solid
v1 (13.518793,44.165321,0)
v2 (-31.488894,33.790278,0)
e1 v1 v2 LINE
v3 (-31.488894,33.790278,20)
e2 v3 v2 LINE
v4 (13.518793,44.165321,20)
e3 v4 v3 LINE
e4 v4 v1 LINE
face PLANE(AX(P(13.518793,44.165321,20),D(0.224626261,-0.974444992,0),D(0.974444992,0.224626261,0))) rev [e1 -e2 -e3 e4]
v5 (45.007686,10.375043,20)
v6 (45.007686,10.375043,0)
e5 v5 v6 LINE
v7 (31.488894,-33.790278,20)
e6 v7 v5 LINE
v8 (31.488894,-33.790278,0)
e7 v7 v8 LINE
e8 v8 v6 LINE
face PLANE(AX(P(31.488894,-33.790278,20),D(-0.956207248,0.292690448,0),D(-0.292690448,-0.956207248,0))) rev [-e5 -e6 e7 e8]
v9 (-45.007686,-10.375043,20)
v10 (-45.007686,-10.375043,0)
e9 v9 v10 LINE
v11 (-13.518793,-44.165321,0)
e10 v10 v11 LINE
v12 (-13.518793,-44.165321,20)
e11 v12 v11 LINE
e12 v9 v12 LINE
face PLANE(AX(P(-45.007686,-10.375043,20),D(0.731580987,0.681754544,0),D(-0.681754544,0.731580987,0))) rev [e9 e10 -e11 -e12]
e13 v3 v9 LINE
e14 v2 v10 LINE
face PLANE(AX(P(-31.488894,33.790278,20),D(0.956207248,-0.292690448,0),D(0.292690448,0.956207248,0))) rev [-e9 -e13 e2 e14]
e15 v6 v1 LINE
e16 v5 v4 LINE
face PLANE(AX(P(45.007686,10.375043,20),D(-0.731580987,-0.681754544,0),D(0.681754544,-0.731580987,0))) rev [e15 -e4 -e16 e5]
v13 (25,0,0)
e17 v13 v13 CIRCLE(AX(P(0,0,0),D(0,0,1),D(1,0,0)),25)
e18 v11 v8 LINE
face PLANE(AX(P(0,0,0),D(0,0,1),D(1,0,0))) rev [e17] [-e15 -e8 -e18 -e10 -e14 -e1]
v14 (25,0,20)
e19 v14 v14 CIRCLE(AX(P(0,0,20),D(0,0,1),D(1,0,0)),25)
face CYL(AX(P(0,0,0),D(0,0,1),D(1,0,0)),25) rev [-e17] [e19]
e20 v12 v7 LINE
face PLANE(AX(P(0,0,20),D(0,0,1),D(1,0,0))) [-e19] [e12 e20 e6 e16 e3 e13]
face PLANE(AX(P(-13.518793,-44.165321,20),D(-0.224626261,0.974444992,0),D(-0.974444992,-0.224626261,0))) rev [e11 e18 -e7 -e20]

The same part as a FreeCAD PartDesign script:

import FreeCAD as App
import Part
import Sketcher

V = App.Vector


def add_polygon(sketch, points):
    """Adds a closed chain of lines whose ends are joined by coincident constraints."""
    first, n = sketch.GeometryCount, len(points)
    for a, b in zip(points, points[1:] + points[:1]):
        sketch.addGeometry(Part.LineSegment(App.Vector(*a, 0), App.Vector(*b, 0)), False)
    for i in range(n):
        sketch.addConstraint(Sketcher.Constraint("Coincident", first + i, 2, first + (i + 1) % n, 1))

doc = App.newDocument("Part")
params = doc.addObject("Spreadsheet::Sheet", "Params")
for row, (alias, value) in enumerate([
    ("pad1_length", "20 mm"),
    ("sketch2_diameter", "50 mm"),
    ("pocket1_length", "20 mm"),
], start=1):
    params.set(f"A{row}", alias)
    params.set(f"B{row}", "=" + value)
    params.setAlias(f"B{row}", alias)

body = doc.addObject("PartDesign::Body", "Body")

sketch1 = body.newObject("Sketcher::SketchObject", "Sketch")
sketch1.AttachmentSupport = (doc.getObject("XY_Plane"), [""])
sketch1.MapMode = "FlatFace"
add_polygon(sketch1, [(-31.488894, 33.790278), (-45.007686, -10.375043), (-13.518793, -44.165321), (31.488894, -33.790278), (45.007686, 10.375043), (13.518793, 44.165321)])
sketch1.addConstraint(Sketcher.Constraint("Symmetric", 0, 2, 3, 2, -1, 1))
sketch1.addConstraint(Sketcher.Constraint("Symmetric", 1, 2, 4, 2, -1, 1))
sketch1.addConstraint(Sketcher.Constraint("Symmetric", 2, 2, 5, 2, -1, 1))
sketch1.addConstraint(Sketcher.Constraint("Equal", 0, 1))
sketch1.addConstraint(Sketcher.Constraint("Equal", 1, 2))
sketch1.addConstraint(Sketcher.Constraint("DistanceX", 4, 2, 2, 2, 17.970101))
sketch1.addConstraint(Sketcher.Constraint("DistanceY", 2, 2, 4, 2, 77.955599))
sketch1.addConstraint(Sketcher.Constraint("Distance", 0, 46.188022))
sketch1.addConstraint(Sketcher.Constraint("DistanceY", 1, 2, -1, 1, 44.165321))
pad1 = body.newObject("PartDesign::Pad", "Pad")
pad1.Profile = sketch1
pad1.setExpression("Length", "Params.pad1_length")

sketch2 = body.newObject("Sketcher::SketchObject", "Sketch001")
sketch2.AttachmentSupport = (doc.getObject("XY_Plane"), [""])
sketch2.MapMode = "FlatFace"
sketch2.AttachmentOffset = App.Placement(V(0, 0, 20), App.Rotation())
sketch2.addGeometry(Part.Circle(V(0, 0, 0), V(0, 0, 1), 25), False)
sketch2.addConstraint(Sketcher.Constraint("Coincident", 0, 3, -1, 1))
sketch2.addConstraint(Sketcher.Constraint("Diameter", 0, 50.0))
sketch2.setExpression("Constraints[1]", "Params.sketch2_diameter")
pocket1 = body.newObject("PartDesign::Pocket", "Pocket")
pocket1.Profile = sketch2
pocket1.setExpression("Length", "Params.pocket1_length")

doc.recompute()
